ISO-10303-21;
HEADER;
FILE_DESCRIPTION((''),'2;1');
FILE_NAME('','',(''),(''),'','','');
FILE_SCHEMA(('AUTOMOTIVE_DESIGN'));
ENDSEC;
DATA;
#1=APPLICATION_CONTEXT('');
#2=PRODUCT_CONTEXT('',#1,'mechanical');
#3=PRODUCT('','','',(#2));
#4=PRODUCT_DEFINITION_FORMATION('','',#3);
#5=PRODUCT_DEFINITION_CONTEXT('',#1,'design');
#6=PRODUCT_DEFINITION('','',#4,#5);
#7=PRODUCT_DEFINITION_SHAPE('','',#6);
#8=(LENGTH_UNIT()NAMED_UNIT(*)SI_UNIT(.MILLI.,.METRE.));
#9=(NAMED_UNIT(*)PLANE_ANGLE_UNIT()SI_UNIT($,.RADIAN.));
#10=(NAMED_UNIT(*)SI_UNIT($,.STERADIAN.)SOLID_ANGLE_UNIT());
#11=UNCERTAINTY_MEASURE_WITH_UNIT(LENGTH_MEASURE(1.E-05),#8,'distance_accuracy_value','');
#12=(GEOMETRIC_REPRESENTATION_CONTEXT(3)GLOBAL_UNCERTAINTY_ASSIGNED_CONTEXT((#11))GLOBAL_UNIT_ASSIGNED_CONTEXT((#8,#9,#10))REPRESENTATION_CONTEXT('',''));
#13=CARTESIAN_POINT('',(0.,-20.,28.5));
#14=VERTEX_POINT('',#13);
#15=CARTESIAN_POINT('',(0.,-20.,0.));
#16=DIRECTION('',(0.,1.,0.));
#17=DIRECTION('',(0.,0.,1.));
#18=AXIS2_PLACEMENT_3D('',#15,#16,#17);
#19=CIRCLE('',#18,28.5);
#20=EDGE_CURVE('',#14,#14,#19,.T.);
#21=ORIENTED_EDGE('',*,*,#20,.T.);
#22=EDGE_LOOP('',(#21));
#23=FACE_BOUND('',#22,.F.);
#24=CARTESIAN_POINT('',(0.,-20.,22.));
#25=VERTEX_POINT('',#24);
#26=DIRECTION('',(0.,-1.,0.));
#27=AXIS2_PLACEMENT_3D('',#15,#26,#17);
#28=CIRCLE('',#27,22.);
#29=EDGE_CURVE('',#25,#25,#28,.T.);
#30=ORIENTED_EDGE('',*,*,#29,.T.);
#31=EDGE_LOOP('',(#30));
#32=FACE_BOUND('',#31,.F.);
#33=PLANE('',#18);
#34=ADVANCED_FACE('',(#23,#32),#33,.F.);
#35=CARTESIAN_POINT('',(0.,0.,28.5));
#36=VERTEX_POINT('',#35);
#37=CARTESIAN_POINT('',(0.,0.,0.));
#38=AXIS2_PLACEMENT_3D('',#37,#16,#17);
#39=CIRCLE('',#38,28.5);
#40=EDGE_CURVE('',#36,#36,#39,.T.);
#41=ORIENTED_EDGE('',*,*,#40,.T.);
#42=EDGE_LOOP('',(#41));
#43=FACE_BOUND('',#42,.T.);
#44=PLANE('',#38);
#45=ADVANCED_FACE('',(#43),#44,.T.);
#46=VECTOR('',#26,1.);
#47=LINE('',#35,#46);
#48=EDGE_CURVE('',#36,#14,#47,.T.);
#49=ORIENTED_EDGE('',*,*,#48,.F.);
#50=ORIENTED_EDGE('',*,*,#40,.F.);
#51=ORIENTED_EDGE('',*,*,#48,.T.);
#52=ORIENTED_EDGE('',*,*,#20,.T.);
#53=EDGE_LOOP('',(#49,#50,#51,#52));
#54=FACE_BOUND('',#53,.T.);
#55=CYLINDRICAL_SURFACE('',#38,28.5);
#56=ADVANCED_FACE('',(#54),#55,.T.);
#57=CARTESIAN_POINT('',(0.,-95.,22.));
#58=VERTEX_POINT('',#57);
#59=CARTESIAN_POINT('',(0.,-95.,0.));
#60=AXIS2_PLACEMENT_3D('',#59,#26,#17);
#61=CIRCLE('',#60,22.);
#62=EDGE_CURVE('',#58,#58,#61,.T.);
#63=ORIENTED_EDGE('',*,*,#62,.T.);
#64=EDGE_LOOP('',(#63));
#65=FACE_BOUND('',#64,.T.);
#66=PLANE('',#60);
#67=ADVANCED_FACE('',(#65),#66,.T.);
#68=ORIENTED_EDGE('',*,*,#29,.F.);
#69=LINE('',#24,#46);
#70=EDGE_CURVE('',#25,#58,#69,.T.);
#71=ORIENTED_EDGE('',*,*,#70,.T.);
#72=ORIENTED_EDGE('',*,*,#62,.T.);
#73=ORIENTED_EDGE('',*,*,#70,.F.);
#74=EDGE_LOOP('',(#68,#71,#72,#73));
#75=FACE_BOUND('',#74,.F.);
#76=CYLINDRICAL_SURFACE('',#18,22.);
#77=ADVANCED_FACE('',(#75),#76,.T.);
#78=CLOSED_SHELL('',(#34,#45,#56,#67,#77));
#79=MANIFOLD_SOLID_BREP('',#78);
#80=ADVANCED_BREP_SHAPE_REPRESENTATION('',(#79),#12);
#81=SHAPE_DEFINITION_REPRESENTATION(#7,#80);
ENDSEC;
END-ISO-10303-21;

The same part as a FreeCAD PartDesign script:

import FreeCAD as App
import Part
import Sketcher
from FreeCAD import Vector

doc = App.newDocument("Part")
params = doc.addObject("Spreadsheet::Sheet", "Params")
for row, (alias, value) in enumerate([
    ("sketch1_diameter", "57 mm"),
    ("pad1_length", "20 mm"),
    ("sketch2_diameter", "44 mm"),
    ("pad2_length", "75 mm"),
], start=1):
    params.set(f"A{row}", alias)
    params.set(f"B{row}", "=" + value)
    params.setAlias(f"B{row}", alias)

body = doc.addObject("PartDesign::Body", "Body")

# Sketch on XZ plane
sketch1 = body.newObject("Sketcher::SketchObject", "Sketch")
sketch1.AttachmentSupport = (doc.getObject("XZ_Plane"), [""])
sketch1.MapMode = "FlatFace"
sketch1.addGeometry(Part.Circle(Vector(0, 0, 0), Vector(0, 0, 1), 28), False)
sketch1.addConstraint(Sketcher.Constraint("Coincident", 0, 3, -1, 1))
sketch1.addConstraint(Sketcher.Constraint("Diameter", 0, 57.0))
sketch1.setExpression("Constraints[1]", "Params.sketch1_diameter")
pad1 = body.newObject("PartDesign::Pad", "Pad")
pad1.Profile = sketch1
pad1.setExpression("Length", "Params.pad1_length")

# Sketch on XZ plane
sketch2 = body.newObject("Sketcher::SketchObject", "Sketch001")
sketch2.AttachmentSupport = (doc.getObject("XZ_Plane"), [""])
sketch2.MapMode = "FlatFace"
sketch2.AttachmentOffset = App.Placement(Vector(0, 0, 20), App.Rotation())
sketch2.addGeometry(Part.Circle(Vector(0, 0, 0), Vector(0, 0, 1), 22), False)
sketch2.addConstraint(Sketcher.Constraint("Coincident", 0, 3, -1, 1))
sketch2.addConstraint(Sketcher.Constraint("Diameter", 0, 44.0))
sketch2.setExpression("Constraints[1]", "Params.sketch2_diameter")
pad2 = body.newObject("PartDesign::Pad", "Pad001")
pad2.Profile = sketch2
pad2.setExpression("Length", "Params.pad2_length")

doc.recompute()
